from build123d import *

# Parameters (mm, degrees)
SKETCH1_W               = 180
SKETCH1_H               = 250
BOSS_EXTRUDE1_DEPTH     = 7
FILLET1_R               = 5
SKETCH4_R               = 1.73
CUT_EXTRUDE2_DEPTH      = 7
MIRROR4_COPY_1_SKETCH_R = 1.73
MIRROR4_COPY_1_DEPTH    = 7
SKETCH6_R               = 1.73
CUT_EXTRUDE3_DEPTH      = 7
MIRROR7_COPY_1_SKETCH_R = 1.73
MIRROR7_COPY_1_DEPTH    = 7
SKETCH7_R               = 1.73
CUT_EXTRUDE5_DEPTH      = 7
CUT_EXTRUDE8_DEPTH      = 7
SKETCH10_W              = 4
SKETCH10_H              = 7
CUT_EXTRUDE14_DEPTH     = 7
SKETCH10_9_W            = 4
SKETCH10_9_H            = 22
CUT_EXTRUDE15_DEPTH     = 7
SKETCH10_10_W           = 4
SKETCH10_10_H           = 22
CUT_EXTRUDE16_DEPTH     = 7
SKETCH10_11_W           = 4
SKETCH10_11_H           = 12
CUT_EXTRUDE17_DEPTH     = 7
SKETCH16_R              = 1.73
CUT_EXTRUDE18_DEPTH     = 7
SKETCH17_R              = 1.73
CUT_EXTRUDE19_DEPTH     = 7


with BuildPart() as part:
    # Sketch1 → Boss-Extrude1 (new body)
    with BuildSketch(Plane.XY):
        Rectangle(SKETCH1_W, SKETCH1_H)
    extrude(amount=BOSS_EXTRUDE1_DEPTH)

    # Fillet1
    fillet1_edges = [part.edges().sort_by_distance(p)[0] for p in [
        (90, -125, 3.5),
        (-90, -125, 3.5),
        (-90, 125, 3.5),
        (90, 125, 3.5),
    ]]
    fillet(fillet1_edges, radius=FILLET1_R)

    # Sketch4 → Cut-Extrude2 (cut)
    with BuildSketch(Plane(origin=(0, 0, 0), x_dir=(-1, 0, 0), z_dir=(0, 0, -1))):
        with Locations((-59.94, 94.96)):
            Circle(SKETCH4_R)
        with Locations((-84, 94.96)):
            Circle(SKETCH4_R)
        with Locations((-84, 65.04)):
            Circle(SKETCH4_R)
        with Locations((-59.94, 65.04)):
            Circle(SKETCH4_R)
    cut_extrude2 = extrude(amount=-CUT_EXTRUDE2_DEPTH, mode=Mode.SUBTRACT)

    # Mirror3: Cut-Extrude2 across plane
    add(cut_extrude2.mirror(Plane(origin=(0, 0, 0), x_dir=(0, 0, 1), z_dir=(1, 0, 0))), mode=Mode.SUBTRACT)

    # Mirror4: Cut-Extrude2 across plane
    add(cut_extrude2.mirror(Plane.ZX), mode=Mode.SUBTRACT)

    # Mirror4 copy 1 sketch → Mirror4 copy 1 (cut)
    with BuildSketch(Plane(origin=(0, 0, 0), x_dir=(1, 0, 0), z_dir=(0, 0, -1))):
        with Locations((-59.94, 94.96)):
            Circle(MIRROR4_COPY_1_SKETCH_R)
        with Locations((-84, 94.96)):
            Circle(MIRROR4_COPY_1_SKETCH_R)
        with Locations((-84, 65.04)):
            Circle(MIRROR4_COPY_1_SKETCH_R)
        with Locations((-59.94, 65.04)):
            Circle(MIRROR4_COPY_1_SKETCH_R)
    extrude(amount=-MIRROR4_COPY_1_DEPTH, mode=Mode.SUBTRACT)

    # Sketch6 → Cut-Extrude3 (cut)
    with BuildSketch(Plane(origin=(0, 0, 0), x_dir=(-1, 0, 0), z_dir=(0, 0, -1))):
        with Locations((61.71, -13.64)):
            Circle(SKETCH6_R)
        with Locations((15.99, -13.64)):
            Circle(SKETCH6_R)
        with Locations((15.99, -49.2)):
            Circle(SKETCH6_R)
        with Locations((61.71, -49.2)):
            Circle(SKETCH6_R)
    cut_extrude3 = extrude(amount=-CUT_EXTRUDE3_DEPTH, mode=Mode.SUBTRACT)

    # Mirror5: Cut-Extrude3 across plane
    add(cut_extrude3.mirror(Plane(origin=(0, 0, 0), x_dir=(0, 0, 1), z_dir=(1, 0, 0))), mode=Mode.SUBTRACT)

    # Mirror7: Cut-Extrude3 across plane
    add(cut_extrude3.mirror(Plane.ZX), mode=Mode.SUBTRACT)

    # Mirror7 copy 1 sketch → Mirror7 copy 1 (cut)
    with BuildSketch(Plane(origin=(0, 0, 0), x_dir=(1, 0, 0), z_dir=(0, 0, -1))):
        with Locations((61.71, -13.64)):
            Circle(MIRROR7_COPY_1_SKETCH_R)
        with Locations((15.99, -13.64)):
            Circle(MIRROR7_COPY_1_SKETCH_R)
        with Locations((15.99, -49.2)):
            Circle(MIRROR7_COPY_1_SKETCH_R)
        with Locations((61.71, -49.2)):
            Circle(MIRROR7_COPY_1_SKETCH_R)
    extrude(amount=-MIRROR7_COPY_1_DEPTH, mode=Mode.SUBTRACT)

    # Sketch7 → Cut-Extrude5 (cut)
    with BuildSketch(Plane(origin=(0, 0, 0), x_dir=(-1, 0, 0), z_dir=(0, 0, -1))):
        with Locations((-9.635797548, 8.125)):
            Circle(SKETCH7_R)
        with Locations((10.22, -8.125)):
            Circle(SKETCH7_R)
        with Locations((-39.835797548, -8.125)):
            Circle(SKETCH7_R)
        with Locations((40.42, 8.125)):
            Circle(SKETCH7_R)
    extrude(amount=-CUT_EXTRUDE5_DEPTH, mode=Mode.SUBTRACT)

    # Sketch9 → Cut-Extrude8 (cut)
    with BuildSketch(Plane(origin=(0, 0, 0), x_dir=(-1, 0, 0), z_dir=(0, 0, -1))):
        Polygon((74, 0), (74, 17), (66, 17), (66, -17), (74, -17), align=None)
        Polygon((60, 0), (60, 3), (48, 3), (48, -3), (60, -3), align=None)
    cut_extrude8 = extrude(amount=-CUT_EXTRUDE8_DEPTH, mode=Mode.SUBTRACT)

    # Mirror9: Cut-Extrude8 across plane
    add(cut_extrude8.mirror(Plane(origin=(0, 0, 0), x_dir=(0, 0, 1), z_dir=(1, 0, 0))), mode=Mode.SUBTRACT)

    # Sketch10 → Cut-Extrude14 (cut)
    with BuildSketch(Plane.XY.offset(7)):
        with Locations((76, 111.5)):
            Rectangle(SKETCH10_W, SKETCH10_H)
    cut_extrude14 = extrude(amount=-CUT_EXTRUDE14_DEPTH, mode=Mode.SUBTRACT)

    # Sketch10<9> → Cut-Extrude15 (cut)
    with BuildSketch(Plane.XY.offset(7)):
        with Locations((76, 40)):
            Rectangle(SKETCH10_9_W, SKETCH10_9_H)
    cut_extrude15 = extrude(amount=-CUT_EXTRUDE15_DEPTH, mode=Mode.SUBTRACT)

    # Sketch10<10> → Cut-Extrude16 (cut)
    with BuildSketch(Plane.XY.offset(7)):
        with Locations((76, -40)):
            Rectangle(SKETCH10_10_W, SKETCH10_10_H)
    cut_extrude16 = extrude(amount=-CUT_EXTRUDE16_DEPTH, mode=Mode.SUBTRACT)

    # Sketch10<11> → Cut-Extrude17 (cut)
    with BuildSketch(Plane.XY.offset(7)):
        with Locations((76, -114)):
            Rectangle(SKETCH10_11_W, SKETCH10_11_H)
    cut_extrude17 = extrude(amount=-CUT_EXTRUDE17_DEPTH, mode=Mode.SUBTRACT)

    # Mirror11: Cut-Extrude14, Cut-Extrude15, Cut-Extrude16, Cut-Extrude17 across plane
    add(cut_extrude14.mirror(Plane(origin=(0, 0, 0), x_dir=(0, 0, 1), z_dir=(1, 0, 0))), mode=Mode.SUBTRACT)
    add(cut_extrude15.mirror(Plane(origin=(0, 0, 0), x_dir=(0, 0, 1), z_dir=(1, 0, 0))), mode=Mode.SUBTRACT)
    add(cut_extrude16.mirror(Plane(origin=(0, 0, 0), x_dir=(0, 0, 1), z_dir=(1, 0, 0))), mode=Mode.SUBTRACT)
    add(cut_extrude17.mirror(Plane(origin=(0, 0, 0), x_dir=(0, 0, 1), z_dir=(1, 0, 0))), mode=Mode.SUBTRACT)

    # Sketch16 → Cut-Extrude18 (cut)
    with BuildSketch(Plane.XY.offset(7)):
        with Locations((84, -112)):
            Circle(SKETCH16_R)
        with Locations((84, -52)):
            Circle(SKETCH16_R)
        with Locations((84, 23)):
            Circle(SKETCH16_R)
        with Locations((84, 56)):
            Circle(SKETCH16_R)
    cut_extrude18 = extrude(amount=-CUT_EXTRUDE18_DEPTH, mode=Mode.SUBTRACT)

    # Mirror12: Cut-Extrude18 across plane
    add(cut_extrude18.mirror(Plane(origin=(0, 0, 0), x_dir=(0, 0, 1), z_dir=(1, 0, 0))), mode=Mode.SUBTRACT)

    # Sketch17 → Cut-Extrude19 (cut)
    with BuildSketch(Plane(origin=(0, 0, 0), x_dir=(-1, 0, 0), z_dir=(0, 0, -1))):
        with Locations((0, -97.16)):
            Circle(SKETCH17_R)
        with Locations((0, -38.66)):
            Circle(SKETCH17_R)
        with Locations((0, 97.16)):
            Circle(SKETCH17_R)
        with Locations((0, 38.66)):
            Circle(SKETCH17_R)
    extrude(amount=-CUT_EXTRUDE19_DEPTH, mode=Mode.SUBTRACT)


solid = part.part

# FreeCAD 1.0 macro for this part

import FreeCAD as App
import Part
import Sketcher

V = App.Vector


def edges_at(feature, points):
    """Names of the edges that pass closest to the given points."""
    edges = feature.Shape.Edges
    near = lambda p: min(range(len(edges)), key=lambda i: edges[i].distToShape(Part.Vertex(*p))[0])
    return sorted({f"Edge{near(p) + 1}" for p in points})


def add_polygon(sketch, points):
    """Adds a closed chain of lines whose ends are joined by coincident constraints."""
    first, n = sketch.GeometryCount, len(points)
    for a, b in zip(points, points[1:] + points[:1]):
        sketch.addGeometry(Part.LineSegment(App.Vector(*a, 0), App.Vector(*b, 0)), False)
    for i in range(n):
        sketch.addConstraint(Sketcher.Constraint("Coincident", first + i, 2, first + (i + 1) % n, 1))

doc = App.newDocument("Part")
body = doc.addObject("PartDesign::Body", "Body")

sketch1 = body.newObject("Sketcher::SketchObject", "Sketch")
sketch1.AttachmentSupport = (doc.getObject("XY_Plane"), [""])
sketch1.MapMode = "FlatFace"
add_polygon(sketch1, [(-90, 125), (-90, -125), (90, -125), (90, 125)])
sketch1.addConstraint([
    Sketcher.Constraint("Vertical", 0),
    Sketcher.Constraint("Horizontal", 1),
    Sketcher.Constraint("Vertical", 2),
    Sketcher.Constraint("Horizontal", 3),
    Sketcher.Constraint("Symmetric", 0, 2, 2, 2, -1, 1),
    Sketcher.Constraint("DistanceX", 1, 1, 1, 2, 180.0),
    Sketcher.Constraint("DistanceY", 0, 2, 0, 1, 250.0),
])
pad1 = body.newObject("PartDesign::Pad", "Pad")
pad1.Profile = sketch1
pad1.Length = 7
doc.recompute()

fillet = body.newObject("PartDesign::Fillet", "Fillet")
fillet.Base = (pad1, edges_at(pad1, [
    (90, -125, 3.5),
    (-90, -125, 3.5),
    (-90, 125, 3.5),
    (90, 125, 3.5),
]))
fillet.Radius = 5

sketch2 = body.newObject("Sketcher::SketchObject", "Sketch001")
sketch2.AttachmentSupport = (doc.getObject("XY_Plane"), [""])
sketch2.MapMode = "FlatFace"
sketch2.addGeometry([
    Part.Circle(V(59.9, 95, 0), V(0, 0, 1), 1.7),
    Part.Circle(V(84, 95, 0), V(0, 0, 1), 1.7),
    Part.Circle(V(84, 65, 0), V(0, 0, 1), 1.7),
    Part.Circle(V(59.9, 65, 0), V(0, 0, 1), 1.7),
], False)
sketch2.addConstraint([
    Sketcher.Constraint("Equal", 0, 1),
    Sketcher.Constraint("Equal", 1, 2),
    Sketcher.Constraint("Equal", 2, 3),
    Sketcher.Constraint("Horizontal", 0, 3, 1, 3),
    Sketcher.Constraint("Horizontal", 2, 3, 3, 3),
    Sketcher.Constraint("Vertical", 1, 3, 2, 3),
    Sketcher.Constraint("Vertical", 0, 3, 3, 3),
    Sketcher.Constraint("Diameter", 0, 3.46),
    Sketcher.Constraint("DistanceX", -1, 1, 1, 3, 84.0),
    Sketcher.Constraint("DistanceX", -1, 1, 0, 3, 59.94),
    Sketcher.Constraint("DistanceY", -1, 1, 0, 3, 94.96),
    Sketcher.Constraint("DistanceY", -1, 1, 2, 3, 65.04),
])
pocket1 = body.newObject("PartDesign::Pocket", "Pocket")
pocket1.Profile = sketch2
pocket1.Length = 7
pocket1.Reversed = True
doc.recompute()

mirrored = body.newObject("PartDesign::Mirrored", "Mirrored")
mirrored.Originals = [pocket1]
mirrored.MirrorPlane = (doc.getObject("YZ_Plane"), [""])
body.Tip = mirrored
doc.recompute()

mirrored2 = body.newObject("PartDesign::Mirrored", "Mirrored001")
mirrored2.Originals = [pocket1]
mirrored2.MirrorPlane = (doc.getObject("XZ_Plane"), [""])
body.Tip = mirrored2

sketch3 = body.newObject("Sketcher::SketchObject", "Sketch002")
sketch3.AttachmentSupport = (doc.getObject("XY_Plane"), [""])
sketch3.MapMode = "FlatFace"
sketch3.addGeometry([
    Part.Circle(V(-59.9, -95, 0), V(0, 0, 1), 1.7),
    Part.Circle(V(-84, -95, 0), V(0, 0, 1), 1.7),
    Part.Circle(V(-84, -65, 0), V(0, 0, 1), 1.7),
    Part.Circle(V(-59.9, -65, 0), V(0, 0, 1), 1.7),
], False)
sketch3.addConstraint([
    Sketcher.Constraint("Equal", 0, 1),
    Sketcher.Constraint("Equal", 1, 2),
    Sketcher.Constraint("Equal", 2, 3),
    Sketcher.Constraint("Horizontal", 0, 3, 1, 3),
    Sketcher.Constraint("Horizontal", 2, 3, 3, 3),
    Sketcher.Constraint("Vertical", 1, 3, 2, 3),
    Sketcher.Constraint("Vertical", 0, 3, 3, 3),
    Sketcher.Constraint("Diameter", 0, 3.46),
    Sketcher.Constraint("DistanceX", 1, 3, -1, 1, 84.0),
    Sketcher.Constraint("DistanceX", 0, 3, -1, 1, 59.94),
    Sketcher.Constraint("DistanceY", 0, 3, -1, 1, 94.96),
    Sketcher.Constraint("DistanceY", 2, 3, -1, 1, 65.04),
])
pocket2 = body.newObject("PartDesign::Pocket", "Pocket001")
pocket2.Profile = sketch3
pocket2.Length = 7
pocket2.Reversed = True

sketch4 = body.newObject("Sketcher::SketchObject", "Sketch003")
sketch4.AttachmentSupport = (doc.getObject("XY_Plane"), [""])
sketch4.MapMode = "FlatFace"
sketch4.addGeometry([
    Part.Circle(V(-61.7, -13.6, 0), V(0, 0, 1), 1.7),
    Part.Circle(V(-16, -13.6, 0), V(0, 0, 1), 1.7),
    Part.Circle(V(-16, -49.2, 0), V(0, 0, 1), 1.7),
    Part.Circle(V(-61.7, -49.2, 0), V(0, 0, 1), 1.7),
], False)
sketch4.addConstraint([
    Sketcher.Constraint("Equal", 0, 1),
    Sketcher.Constraint("Equal", 1, 2),
    Sketcher.Constraint("Equal", 2, 3),
    Sketcher.Constraint("Horizontal", 0, 3, 1, 3),
    Sketcher.Constraint("Horizontal", 2, 3, 3, 3),
    Sketcher.Constraint("Vertical", 1, 3, 2, 3),
    Sketcher.Constraint("Vertical", 0, 3, 3, 3),
    Sketcher.Constraint("Diameter", 0, 3.46),
    Sketcher.Constraint("DistanceY", 2, 3, -1, 1, 49.2),
    Sketcher.Constraint("DistanceX", 0, 3, -1, 1, 61.71),
    Sketcher.Constraint("DistanceY", 0, 3, -1, 1, 13.64),
    Sketcher.Constraint("DistanceX", 1, 3, -1, 1, 15.99),
])
pocket3 = body.newObject("PartDesign::Pocket", "Pocket002")
pocket3.Profile = sketch4
pocket3.Length = 7
pocket3.Reversed = True
doc.recompute()

mirrored3 = body.newObject("PartDesign::Mirrored", "Mirrored002")
mirrored3.Originals = [pocket3]
mirrored3.MirrorPlane = (doc.getObject("YZ_Plane"), [""])
body.Tip = mirrored3
doc.recompute()

mirrored4 = body.newObject("PartDesign::Mirrored", "Mirrored003")
mirrored4.Originals = [pocket3]
mirrored4.MirrorPlane = (doc.getObject("XZ_Plane"), [""])
body.Tip = mirrored4

sketch5 = body.newObject("Sketcher::SketchObject", "Sketch004")
sketch5.AttachmentSupport = (doc.getObject("XY_Plane"), [""])
sketch5.MapMode = "FlatFace"
sketch5.addGeometry([
    Part.Circle(V(61.7, 13.6, 0), V(0, 0, 1), 1.7),
    Part.Circle(V(16, 13.6, 0), V(0, 0, 1), 1.7),
    Part.Circle(V(16, 49.2, 0), V(0, 0, 1), 1.7),
    Part.Circle(V(61.7, 49.2, 0), V(0, 0, 1), 1.7),
], False)
sketch5.addConstraint([
    Sketcher.Constraint("Equal", 0, 1),
    Sketcher.Constraint("Equal", 1, 2),
    Sketcher.Constraint("Equal", 2, 3),
    Sketcher.Constraint("Horizontal", 0, 3, 1, 3),
    Sketcher.Constraint("Horizontal", 2, 3, 3, 3),
    Sketcher.Constraint("Vertical", 1, 3, 2, 3),
    Sketcher.Constraint("Vertical", 0, 3, 3, 3),
    Sketcher.Constraint("Diameter", 0, 3.46),
    Sketcher.Constraint("DistanceY", -1, 1, 2, 3, 49.2),
    Sketcher.Constraint("DistanceX", -1, 1, 0, 3, 61.71),
    Sketcher.Constraint("DistanceY", -1, 1, 0, 3, 13.64),
    Sketcher.Constraint("DistanceX", -1, 1, 1, 3, 15.99),
])
pocket4 = body.newObject("PartDesign::Pocket", "Pocket003")
pocket4.Profile = sketch5
pocket4.Length = 7
pocket4.Reversed = True

sketch6 = body.newObject("Sketcher::SketchObject", "Sketch005")
sketch6.AttachmentSupport = (doc.getObject("XY_Plane"), [""])
sketch6.MapMode = "FlatFace"
sketch6.addGeometry([
    Part.Circle(V(9.6, 8.1, 0), V(0, 0, 1), 1.7),
    Part.Circle(V(-10.2, -8.1, 0), V(0, 0, 1), 1.7),
    Part.Circle(V(39.8, -8.1, 0), V(0, 0, 1), 1.7),
    Part.Circle(V(-40.4, 8.1, 0), V(0, 0, 1), 1.7),
], False)
sketch6.addConstraint([
    Sketcher.Constraint("Equal", 0, 1),
    Sketcher.Constraint("Equal", 1, 2),
    Sketcher.Constraint("Equal", 2, 3),
    Sketcher.Constraint("Horizontal", 1, 3, 2, 3),
    Sketcher.Constraint("Horizontal", 0, 3, 3, 3),
    Sketcher.Constraint("Diameter", 0, 3.46),
    Sketcher.Constraint("DistanceX", 0, 3, 2, 3, 30.2),
    Sketcher.Constraint("DistanceX", 3, 3, 1, 3, 30.2),
    Sketcher.Constraint("DistanceX", 1, 3, -1, 1, 10.22),
    Sketcher.Constraint("DistanceY", 1, 3, 0, 3, 16.25),
    Sketcher.Constraint("DistanceY", -1, 1, 0, 3, 8.125),
    Sketcher.Constraint("DistanceX", -1, 1, 0, 3, 9.635798),
])
pocket5 = body.newObject("PartDesign::Pocket", "Pocket004")
pocket5.Profile = sketch6
pocket5.Length = 7
pocket5.Reversed = True

sketch7 = body.newObject("Sketcher::SketchObject", "Sketch006")
sketch7.AttachmentSupport = (doc.getObject("XY_Plane"), [""])
sketch7.MapMode = "FlatFace"
add_polygon(sketch7, [(-74, 17), (-66, 17), (-66, -17), (-74, -17)])
add_polygon(sketch7, [(-60, 3), (-48, 3), (-48, -3), (-60, -3)])
sketch7.addConstraint([
    Sketcher.Constraint("Horizontal", 0),
    Sketcher.Constraint("Vertical", 1),
    Sketcher.Constraint("Horizontal", 2),
    Sketcher.Constraint("Vertical", 3),
    Sketcher.Constraint("Horizontal", 4),
    Sketcher.Constraint("Vertical", 5),
    Sketcher.Constraint("Horizontal", 6),
    Sketcher.Constraint("Vertical", 7),
    Sketcher.Constraint("DistanceX", 0, 1, 0, 2, 8.0),
    Sketcher.Constraint("DistanceX", 4, 1, 4, 2, 12.0),
    Sketcher.Constraint("DistanceY", 1, 2, 1, 1, 34.0),
    Sketcher.Constraint("DistanceY", 5, 2, 5, 1, 6.0),
    Sketcher.Constraint("DistanceX", 0, 2, -1, 1, 66.0),
    Sketcher.Constraint("DistanceY", -1, 1, 0, 2, 17.0),
    Sketcher.Constraint("DistanceX", 4, 2, -1, 1, 48.0),
    Sketcher.Constraint("DistanceY", -1, 1, 4, 2, 3.0),
])
pocket6 = body.newObject("PartDesign::Pocket", "Pocket005")
pocket6.Profile = sketch7
pocket6.Length = 7
pocket6.Reversed = True
doc.recompute()

mirrored5 = body.newObject("PartDesign::Mirrored", "Mirrored004")
mirrored5.Originals = [pocket6]
mirrored5.MirrorPlane = (doc.getObject("YZ_Plane"), [""])
body.Tip = mirrored5

sketch8 = body.newObject("Sketcher::SketchObject", "Sketch007")
sketch8.AttachmentSupport = (doc.getObject("XY_Plane"), [""])
sketch8.MapMode = "FlatFace"
sketch8.AttachmentOffset = App.Placement(V(0, 0, 7), App.Rotation())
add_polygon(sketch8, [(74, 115), (74, 108), (78, 108), (78, 115)])
sketch8.addConstraint([
    Sketcher.Constraint("Vertical", 0),
    Sketcher.Constraint("Horizontal", 1),
    Sketcher.Constraint("Vertical", 2),
    Sketcher.Constraint("Horizontal", 3),
    Sketcher.Constraint("DistanceX", 1, 1, 1, 2, 4.0),
    Sketcher.Constraint("DistanceY", 0, 2, 0, 1, 7.0),
    Sketcher.Constraint("DistanceX", -1, 1, 0, 2, 74.0),
    Sketcher.Constraint("DistanceY", -1, 1, 0, 2, 108.0),
])
pocket7 = body.newObject("PartDesign::Pocket", "Pocket006")
pocket7.Profile = sketch8
pocket7.Length = 7

sketch9 = body.newObject("Sketcher::SketchObject", "Sketch008")
sketch9.AttachmentSupport = (doc.getObject("XY_Plane"), [""])
sketch9.MapMode = "FlatFace"
sketch9.AttachmentOffset = App.Placement(V(0, 0, 7), App.Rotation())
add_polygon(sketch9, [(74, 51), (74, 29), (78, 29), (78, 51)])
sketch9.addConstraint([
    Sketcher.Constraint("Vertical", 0),
    Sketcher.Constraint("Horizontal", 1),
    Sketcher.Constraint("Vertical", 2),
    Sketcher.Constraint("Horizontal", 3),
    Sketcher.Constraint("DistanceX", 1, 1, 1, 2, 4.0),
    Sketcher.Constraint("DistanceY", 0, 2, 0, 1, 22.0),
    Sketcher.Constraint("DistanceX", -1, 1, 0, 2, 74.0),
    Sketcher.Constraint("DistanceY", -1, 1, 0, 2, 29.0),
])
pocket8 = body.newObject("PartDesign::Pocket", "Pocket007")
pocket8.Profile = sketch9
pocket8.Length = 7

sketch10 = body.newObject("Sketcher::SketchObject", "Sketch009")
sketch10.AttachmentSupport = (doc.getObject("XY_Plane"), [""])
sketch10.MapMode = "FlatFace"
sketch10.AttachmentOffset = App.Placement(V(0, 0, 7), App.Rotation())
add_polygon(sketch10, [(74, -29), (74, -51), (78, -51), (78, -29)])
sketch10.addConstraint([
    Sketcher.Constraint("Vertical", 0),
    Sketcher.Constraint("Horizontal", 1),
    Sketcher.Constraint("Vertical", 2),
    Sketcher.Constraint("Horizontal", 3),
    Sketcher.Constraint("DistanceX", 1, 1, 1, 2, 4.0),
    Sketcher.Constraint("DistanceY", 0, 2, 0, 1, 22.0),
    Sketcher.Constraint("DistanceX", -1, 1, 0, 2, 74.0),
    Sketcher.Constraint("DistanceY", 0, 2, -1, 1, 51.0),
])
pocket9 = body.newObject("PartDesign::Pocket", "Pocket008")
pocket9.Profile = sketch10
pocket9.Length = 7

sketch11 = body.newObject("Sketcher::SketchObject", "Sketch010")
sketch11.AttachmentSupport = (doc.getObject("XY_Plane"), [""])
sketch11.MapMode = "FlatFace"
sketch11.AttachmentOffset = App.Placement(V(0, 0, 7), App.Rotation())
add_polygon(sketch11, [(74, -108), (74, -120), (78, -120), (78, -108)])
sketch11.addConstraint([
    Sketcher.Constraint("Vertical", 0),
    Sketcher.Constraint("Horizontal", 1),
    Sketcher.Constraint("Vertical", 2),
    Sketcher.Constraint("Horizontal", 3),
    Sketcher.Constraint("DistanceX", 1, 1, 1, 2, 4.0),
    Sketcher.Constraint("DistanceY", 0, 2, 0, 1, 12.0),
    Sketcher.Constraint("DistanceX", -1, 1, 0, 2, 74.0),
    Sketcher.Constraint("DistanceY", 0, 2, -1, 1, 120.0),
])
pocket10 = body.newObject("PartDesign::Pocket", "Pocket009")
pocket10.Profile = sketch11
pocket10.Length = 7
doc.recompute()

mirrored6 = body.newObject("PartDesign::Mirrored", "Mirrored005")
mirrored6.Originals = [pocket7, pocket8, pocket9, pocket10]
mirrored6.MirrorPlane = (doc.getObject("YZ_Plane"), [""])
body.Tip = mirrored6

sketch12 = body.newObject("Sketcher::SketchObject", "Sketch011")
sketch12.AttachmentSupport = (doc.getObject("XY_Plane"), [""])
sketch12.MapMode = "FlatFace"
sketch12.AttachmentOffset = App.Placement(V(0, 0, 7), App.Rotation())
sketch12.addGeometry([
    Part.Circle(V(84, -112, 0), V(0, 0, 1), 1.7),
    Part.Circle(V(84, -52, 0), V(0, 0, 1), 1.7),
    Part.Circle(V(84, 23, 0), V(0, 0, 1), 1.7),
    Part.Circle(V(84, 56, 0), V(0, 0, 1), 1.7),
], False)
sketch12.addConstraint([
    Sketcher.Constraint("Equal", 0, 1),
    Sketcher.Constraint("Equal", 1, 2),
    Sketcher.Constraint("Equal", 2, 3),
    Sketcher.Constraint("Vertical", 0, 3, 1, 3),
    Sketcher.Constraint("Vertical", 1, 3, 2, 3),
    Sketcher.Constraint("Vertical", 2, 3, 3, 3),
    Sketcher.Constraint("Diameter", 0, 3.46),
    Sketcher.Constraint("DistanceX", -1, 1, 0, 3, 84.0),
    Sketcher.Constraint("DistanceY", 0, 3, -1, 1, 112.0),
    Sketcher.Constraint("DistanceY", 1, 3, -1, 1, 52.0),
    Sketcher.Constraint("DistanceY", -1, 1, 2, 3, 23.0),
    Sketcher.Constraint("DistanceY", -1, 1, 3, 3, 56.0),
])
pocket11 = body.newObject("PartDesign::Pocket", "Pocket010")
pocket11.Profile = sketch12
pocket11.Length = 7
doc.recompute()

mirrored7 = body.newObject("PartDesign::Mirrored", "Mirrored006")
mirrored7.Originals = [pocket11]
mirrored7.MirrorPlane = (doc.getObject("YZ_Plane"), [""])
body.Tip = mirrored7

sketch13 = body.newObject("Sketcher::SketchObject", "Sketch012")
sketch13.AttachmentSupport = (doc.getObject("XY_Plane"), [""])
sketch13.MapMode = "FlatFace"
sketch13.addGeometry([
    Part.Circle(V(0, -97.2, 0), V(0, 0, 1), 1.7),
    Part.Circle(V(0, -38.7, 0), V(0, 0, 1), 1.7),
    Part.Circle(V(0, 97.2, 0), V(0, 0, 1), 1.7),
    Part.Circle(V(0, 38.7, 0), V(0, 0, 1), 1.7),
], False)
sketch13.addConstraint([
    Sketcher.Constraint("Equal", 0, 1),
    Sketcher.Constraint("Equal", 1, 2),
    Sketcher.Constraint("Equal", 2, 3),
    Sketcher.Constraint("Symmetric", 0, 3, 2, 3, -1, 1),
    Sketcher.Constraint("Symmetric", 1, 3, 3, 3, -1, 1),
    Sketcher.Constraint("PointOnObject", 0, 3, -2),
    Sketcher.Constraint("PointOnObject", 1, 3, -2),
    Sketcher.Constraint("Diameter", 0, 3.46),
    Sketcher.Constraint("DistanceY", 0, 3, 1, 3, 58.5),
    Sketcher.Constraint("DistanceY", 0, 3, -1, 1, 97.16),
])
pocket12 = body.newObject("PartDesign::Pocket", "Pocket011")
pocket12.Profile = sketch13
pocket12.Length = 7
pocket12.Reversed = True

doc.recompute()
